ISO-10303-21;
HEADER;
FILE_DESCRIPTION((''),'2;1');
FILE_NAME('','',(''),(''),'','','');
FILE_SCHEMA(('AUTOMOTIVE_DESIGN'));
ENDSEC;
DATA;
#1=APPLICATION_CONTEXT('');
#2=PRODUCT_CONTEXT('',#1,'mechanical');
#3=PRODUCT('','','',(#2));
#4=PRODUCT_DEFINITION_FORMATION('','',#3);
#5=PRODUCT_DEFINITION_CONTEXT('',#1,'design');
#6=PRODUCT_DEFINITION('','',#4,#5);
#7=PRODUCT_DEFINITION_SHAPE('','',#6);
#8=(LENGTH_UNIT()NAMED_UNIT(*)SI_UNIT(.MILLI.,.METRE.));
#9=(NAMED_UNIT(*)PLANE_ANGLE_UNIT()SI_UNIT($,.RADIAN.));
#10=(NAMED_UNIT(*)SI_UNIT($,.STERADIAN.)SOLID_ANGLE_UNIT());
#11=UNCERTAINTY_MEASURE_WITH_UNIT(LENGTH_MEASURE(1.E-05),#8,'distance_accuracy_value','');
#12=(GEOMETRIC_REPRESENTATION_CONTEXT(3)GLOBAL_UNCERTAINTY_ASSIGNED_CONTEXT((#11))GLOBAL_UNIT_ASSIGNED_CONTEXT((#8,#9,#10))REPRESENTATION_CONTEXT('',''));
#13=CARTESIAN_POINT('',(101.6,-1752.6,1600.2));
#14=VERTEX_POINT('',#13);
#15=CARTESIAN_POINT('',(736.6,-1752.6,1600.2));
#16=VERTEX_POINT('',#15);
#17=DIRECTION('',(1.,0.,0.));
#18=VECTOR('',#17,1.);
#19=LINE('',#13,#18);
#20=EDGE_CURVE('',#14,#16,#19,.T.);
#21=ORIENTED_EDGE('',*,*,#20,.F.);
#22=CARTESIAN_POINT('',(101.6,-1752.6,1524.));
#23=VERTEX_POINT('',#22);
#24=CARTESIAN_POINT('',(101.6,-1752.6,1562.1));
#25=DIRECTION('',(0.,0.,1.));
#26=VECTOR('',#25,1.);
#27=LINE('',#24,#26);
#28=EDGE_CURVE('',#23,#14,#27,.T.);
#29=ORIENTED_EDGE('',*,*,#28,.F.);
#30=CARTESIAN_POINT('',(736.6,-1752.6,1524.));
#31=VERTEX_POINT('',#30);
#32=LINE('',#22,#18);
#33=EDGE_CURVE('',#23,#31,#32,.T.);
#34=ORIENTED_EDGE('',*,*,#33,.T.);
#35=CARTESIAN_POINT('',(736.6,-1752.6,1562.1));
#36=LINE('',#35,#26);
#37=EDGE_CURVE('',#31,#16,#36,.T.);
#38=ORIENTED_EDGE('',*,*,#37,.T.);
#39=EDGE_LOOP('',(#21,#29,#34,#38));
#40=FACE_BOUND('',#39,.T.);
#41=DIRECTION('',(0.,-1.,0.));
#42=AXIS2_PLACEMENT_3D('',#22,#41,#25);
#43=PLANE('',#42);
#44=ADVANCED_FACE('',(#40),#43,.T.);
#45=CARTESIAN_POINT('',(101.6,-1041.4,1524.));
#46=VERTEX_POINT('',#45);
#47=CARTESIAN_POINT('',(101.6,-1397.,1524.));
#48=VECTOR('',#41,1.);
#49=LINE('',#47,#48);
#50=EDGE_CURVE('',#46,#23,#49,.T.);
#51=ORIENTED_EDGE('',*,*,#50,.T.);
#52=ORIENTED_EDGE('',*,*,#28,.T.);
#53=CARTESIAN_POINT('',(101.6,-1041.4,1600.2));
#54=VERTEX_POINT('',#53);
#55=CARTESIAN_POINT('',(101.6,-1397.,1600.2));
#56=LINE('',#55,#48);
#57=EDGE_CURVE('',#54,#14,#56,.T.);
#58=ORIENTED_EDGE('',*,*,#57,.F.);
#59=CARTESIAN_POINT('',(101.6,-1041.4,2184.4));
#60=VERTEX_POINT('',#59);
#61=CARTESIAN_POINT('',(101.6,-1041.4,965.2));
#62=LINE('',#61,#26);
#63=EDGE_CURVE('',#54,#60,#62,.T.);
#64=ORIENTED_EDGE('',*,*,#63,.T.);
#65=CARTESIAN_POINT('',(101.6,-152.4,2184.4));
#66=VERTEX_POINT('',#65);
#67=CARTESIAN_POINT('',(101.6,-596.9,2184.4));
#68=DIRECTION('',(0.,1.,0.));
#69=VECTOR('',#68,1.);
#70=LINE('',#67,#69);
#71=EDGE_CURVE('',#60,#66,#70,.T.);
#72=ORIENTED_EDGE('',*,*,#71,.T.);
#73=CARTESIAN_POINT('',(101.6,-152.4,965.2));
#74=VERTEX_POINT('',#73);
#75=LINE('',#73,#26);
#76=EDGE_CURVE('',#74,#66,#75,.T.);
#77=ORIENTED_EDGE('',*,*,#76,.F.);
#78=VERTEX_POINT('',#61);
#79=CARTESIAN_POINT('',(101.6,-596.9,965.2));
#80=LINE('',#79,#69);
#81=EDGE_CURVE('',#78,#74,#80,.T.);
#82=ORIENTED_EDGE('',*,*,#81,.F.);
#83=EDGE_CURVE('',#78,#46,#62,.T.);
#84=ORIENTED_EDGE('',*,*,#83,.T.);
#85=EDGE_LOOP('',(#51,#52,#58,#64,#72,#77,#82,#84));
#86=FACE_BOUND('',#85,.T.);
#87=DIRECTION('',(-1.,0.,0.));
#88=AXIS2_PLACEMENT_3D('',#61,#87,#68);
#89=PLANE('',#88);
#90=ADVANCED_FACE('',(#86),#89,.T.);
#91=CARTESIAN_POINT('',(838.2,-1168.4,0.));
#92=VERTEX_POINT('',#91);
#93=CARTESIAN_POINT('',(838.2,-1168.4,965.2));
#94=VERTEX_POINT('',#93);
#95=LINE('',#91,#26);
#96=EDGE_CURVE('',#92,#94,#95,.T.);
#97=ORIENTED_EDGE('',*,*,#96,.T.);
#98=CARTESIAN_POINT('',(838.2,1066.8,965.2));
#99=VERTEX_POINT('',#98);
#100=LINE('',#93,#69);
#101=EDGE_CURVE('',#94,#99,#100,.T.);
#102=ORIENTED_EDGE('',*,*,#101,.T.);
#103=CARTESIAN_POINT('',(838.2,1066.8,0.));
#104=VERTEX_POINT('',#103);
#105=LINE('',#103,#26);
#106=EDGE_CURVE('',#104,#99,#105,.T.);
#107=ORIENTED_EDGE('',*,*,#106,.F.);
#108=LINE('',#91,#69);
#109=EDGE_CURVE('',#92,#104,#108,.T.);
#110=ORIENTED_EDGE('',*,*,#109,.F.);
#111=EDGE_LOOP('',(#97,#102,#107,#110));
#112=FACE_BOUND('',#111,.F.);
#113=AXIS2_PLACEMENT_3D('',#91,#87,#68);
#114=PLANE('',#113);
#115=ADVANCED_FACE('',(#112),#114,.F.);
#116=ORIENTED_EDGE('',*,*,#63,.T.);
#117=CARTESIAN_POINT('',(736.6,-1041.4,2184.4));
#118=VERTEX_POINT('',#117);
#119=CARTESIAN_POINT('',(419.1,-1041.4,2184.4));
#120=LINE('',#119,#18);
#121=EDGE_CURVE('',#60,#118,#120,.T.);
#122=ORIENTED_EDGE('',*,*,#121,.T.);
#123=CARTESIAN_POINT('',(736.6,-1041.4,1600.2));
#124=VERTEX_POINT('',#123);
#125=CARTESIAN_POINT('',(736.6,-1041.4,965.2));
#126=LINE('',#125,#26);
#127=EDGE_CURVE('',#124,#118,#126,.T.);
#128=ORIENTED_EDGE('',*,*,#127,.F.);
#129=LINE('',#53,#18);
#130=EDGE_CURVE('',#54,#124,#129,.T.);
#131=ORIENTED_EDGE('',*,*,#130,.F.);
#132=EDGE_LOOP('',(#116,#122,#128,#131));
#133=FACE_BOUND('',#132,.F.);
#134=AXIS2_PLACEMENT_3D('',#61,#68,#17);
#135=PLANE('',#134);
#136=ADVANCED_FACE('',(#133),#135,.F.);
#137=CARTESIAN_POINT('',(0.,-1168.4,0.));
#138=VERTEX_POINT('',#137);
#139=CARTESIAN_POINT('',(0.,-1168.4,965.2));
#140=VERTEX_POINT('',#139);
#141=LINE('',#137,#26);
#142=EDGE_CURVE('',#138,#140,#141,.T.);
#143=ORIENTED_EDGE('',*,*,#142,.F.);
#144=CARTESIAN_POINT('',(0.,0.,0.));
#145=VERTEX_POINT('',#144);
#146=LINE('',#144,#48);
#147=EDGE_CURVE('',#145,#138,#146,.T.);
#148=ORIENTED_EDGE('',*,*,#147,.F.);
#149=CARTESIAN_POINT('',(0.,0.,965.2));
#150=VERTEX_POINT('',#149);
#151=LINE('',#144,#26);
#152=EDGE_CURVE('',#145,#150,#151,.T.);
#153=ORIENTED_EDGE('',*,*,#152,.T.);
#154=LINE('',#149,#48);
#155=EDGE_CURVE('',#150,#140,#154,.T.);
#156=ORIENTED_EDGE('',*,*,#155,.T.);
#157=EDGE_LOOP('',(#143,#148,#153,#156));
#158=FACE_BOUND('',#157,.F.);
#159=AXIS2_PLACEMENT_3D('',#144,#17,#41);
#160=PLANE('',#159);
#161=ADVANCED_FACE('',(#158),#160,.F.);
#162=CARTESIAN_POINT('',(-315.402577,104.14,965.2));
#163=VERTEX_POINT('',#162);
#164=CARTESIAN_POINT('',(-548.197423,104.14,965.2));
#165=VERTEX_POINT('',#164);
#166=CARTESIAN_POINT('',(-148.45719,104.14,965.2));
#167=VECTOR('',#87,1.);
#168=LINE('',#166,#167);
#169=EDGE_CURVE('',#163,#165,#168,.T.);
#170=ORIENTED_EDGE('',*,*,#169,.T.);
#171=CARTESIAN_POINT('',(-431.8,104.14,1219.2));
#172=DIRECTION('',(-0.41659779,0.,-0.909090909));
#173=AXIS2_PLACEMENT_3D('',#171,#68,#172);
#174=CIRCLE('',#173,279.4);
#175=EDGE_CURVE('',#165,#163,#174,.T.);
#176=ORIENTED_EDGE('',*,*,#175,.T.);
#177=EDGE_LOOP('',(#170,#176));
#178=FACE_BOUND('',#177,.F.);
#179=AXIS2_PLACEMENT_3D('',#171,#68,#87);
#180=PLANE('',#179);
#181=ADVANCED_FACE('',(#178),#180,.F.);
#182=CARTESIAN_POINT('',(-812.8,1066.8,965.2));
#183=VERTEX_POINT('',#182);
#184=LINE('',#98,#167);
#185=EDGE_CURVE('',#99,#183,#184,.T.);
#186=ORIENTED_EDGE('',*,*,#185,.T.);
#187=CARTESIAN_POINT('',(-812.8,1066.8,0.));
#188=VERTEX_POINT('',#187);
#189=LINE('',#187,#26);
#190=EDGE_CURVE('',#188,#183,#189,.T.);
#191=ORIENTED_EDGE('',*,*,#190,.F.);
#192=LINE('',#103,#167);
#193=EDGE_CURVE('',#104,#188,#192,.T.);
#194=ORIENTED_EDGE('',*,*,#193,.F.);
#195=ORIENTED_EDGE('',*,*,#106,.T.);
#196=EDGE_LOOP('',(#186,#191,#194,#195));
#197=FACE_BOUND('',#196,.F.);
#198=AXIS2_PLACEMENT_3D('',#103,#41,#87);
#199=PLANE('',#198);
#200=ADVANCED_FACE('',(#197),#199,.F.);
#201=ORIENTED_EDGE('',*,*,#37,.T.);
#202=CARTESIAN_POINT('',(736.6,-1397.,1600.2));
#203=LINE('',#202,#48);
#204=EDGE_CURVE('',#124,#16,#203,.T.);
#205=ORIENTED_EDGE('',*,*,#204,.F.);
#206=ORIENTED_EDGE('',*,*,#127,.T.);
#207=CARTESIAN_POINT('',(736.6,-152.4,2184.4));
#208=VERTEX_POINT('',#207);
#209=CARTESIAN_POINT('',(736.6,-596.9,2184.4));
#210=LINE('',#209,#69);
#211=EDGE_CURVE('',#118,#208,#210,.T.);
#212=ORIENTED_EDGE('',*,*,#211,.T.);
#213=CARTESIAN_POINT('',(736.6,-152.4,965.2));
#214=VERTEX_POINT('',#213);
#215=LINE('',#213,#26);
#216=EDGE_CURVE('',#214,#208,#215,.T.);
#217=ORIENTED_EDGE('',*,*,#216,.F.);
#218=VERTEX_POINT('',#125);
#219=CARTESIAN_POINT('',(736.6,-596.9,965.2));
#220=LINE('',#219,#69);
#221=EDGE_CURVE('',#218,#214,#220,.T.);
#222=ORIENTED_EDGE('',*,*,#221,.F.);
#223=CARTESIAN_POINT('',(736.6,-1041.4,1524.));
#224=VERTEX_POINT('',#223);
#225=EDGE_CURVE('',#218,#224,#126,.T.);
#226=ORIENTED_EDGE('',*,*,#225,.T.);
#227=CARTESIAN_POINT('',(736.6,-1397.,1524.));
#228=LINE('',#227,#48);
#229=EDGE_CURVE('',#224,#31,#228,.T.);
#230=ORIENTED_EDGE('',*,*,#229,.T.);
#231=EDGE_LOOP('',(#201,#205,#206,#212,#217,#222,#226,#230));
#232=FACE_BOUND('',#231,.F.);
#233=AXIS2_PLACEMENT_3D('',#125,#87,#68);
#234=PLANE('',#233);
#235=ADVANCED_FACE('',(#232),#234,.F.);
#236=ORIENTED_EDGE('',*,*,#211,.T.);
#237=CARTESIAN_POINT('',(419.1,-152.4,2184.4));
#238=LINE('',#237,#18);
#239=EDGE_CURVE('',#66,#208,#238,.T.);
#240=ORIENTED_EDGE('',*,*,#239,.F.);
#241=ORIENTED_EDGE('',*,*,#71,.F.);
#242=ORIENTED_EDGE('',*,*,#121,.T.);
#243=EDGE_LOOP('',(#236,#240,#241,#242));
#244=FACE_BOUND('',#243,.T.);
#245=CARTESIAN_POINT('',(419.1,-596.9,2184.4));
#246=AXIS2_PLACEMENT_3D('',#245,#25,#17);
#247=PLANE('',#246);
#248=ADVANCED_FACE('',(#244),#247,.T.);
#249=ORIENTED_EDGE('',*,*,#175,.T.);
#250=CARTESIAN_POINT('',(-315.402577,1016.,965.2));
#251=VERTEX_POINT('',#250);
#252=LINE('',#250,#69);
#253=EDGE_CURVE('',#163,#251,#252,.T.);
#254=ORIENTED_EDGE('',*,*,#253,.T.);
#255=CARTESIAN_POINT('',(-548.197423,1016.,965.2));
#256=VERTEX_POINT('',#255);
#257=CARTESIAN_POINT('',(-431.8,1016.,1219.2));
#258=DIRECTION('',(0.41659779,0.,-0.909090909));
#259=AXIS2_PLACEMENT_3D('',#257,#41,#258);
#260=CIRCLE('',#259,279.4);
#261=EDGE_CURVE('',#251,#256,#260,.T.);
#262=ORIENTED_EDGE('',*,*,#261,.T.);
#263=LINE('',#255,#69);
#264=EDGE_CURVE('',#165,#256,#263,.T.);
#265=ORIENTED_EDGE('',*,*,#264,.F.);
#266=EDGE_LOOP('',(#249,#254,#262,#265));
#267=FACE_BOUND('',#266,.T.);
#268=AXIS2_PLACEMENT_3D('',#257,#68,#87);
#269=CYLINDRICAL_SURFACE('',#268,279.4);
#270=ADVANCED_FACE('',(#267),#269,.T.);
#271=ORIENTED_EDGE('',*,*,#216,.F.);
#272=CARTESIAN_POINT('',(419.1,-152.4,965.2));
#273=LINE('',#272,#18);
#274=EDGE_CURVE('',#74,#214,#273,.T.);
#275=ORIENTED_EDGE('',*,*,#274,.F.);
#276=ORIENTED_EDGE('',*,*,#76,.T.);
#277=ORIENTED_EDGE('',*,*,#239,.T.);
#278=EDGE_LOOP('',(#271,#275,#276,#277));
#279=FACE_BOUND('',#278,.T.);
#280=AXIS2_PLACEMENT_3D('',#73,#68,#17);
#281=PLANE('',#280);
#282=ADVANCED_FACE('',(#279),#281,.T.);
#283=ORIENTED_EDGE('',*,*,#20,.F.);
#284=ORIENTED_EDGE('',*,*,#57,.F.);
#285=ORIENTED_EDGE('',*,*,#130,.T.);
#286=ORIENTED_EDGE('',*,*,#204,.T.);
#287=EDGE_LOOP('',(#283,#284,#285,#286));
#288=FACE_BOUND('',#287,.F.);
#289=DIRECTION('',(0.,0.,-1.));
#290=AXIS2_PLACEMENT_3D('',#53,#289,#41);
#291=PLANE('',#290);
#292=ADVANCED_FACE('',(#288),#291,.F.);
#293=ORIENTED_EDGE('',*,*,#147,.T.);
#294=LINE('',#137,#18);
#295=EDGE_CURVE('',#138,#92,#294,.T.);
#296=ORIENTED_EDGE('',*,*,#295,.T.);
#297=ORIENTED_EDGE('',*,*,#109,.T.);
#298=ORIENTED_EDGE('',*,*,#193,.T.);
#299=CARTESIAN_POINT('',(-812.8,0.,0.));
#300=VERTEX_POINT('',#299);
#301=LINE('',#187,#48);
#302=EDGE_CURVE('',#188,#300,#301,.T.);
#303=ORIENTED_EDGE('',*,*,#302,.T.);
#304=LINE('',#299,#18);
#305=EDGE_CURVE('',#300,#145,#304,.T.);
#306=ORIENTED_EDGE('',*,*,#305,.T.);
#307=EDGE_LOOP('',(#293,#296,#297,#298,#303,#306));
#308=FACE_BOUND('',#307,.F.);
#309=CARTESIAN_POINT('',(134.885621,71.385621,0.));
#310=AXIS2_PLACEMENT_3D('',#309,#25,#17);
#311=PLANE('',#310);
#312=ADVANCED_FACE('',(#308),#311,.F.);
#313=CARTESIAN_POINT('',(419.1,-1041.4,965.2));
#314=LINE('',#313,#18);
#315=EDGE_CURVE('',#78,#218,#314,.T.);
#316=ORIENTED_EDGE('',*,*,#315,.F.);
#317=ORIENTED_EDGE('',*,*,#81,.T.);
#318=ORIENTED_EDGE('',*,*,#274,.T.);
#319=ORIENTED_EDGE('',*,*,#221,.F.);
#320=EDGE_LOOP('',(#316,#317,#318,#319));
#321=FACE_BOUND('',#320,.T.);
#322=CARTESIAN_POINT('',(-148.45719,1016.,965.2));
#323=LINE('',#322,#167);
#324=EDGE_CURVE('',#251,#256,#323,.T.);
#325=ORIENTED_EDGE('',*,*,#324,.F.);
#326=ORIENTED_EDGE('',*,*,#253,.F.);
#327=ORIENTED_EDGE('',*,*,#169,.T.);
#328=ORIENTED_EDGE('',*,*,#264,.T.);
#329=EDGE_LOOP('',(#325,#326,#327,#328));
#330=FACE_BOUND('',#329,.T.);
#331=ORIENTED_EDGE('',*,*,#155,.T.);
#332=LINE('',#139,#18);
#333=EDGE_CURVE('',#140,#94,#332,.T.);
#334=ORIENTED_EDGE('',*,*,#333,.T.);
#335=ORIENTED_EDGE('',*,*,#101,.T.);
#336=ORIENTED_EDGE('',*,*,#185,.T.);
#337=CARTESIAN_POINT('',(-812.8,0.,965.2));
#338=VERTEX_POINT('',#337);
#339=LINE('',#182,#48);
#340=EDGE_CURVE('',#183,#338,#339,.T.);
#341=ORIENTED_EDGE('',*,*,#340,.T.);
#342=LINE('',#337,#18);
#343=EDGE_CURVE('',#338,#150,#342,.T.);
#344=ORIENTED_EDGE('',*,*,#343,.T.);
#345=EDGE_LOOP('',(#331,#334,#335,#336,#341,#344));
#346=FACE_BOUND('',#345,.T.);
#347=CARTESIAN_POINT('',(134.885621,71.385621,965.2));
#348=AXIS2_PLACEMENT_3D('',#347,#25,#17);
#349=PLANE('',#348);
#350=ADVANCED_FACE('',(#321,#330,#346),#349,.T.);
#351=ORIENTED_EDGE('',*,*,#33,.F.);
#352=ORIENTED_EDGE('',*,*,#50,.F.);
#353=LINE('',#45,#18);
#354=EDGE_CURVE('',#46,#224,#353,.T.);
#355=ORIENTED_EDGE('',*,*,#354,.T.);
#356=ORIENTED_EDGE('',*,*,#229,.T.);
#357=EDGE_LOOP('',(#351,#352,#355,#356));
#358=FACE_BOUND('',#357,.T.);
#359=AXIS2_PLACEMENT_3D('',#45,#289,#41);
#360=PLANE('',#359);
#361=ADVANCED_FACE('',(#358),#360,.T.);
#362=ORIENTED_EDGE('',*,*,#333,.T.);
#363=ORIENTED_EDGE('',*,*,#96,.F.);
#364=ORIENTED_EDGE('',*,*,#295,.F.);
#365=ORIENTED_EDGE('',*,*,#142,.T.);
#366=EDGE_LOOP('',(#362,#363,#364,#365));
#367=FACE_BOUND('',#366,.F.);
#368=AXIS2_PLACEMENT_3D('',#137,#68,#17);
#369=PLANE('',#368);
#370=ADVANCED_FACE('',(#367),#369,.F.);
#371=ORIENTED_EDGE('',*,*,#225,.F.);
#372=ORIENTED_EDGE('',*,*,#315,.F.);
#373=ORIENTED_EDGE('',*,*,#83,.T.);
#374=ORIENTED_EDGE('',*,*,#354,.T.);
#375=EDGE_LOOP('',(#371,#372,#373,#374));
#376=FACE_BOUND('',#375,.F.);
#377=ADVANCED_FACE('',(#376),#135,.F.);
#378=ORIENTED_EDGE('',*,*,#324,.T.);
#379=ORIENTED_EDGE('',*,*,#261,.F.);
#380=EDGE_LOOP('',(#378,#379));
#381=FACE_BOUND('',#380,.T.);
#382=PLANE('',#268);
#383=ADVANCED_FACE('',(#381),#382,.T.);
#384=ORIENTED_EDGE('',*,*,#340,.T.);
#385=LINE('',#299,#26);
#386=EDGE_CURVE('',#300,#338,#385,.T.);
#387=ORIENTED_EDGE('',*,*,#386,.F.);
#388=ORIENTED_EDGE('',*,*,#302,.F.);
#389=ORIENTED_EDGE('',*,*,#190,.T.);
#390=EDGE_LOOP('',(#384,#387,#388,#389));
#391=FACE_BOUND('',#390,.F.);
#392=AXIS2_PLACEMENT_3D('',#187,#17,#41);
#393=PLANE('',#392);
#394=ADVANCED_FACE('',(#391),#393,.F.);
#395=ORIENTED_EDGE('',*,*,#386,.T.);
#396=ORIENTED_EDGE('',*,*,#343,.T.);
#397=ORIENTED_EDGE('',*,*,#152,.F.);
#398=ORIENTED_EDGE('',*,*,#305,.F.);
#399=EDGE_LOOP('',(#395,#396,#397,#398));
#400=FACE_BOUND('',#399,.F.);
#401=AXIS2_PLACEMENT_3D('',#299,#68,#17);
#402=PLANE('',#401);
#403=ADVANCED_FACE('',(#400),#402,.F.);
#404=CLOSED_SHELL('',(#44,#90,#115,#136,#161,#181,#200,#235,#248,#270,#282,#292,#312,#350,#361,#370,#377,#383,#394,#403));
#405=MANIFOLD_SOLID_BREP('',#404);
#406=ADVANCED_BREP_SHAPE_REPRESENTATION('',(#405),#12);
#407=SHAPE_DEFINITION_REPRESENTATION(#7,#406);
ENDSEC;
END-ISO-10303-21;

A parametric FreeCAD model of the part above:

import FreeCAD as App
import Part
import Sketcher
from FreeCAD import Vector
Q = App.Units.Quantity


def add_polygon(sketch, points):
    """Adds a closed chain of lines whose ends are joined by coincident constraints."""
    first, n = sketch.GeometryCount, len(points)
    for a, b in zip(points, points[1:] + points[:1]):
        sketch.addGeometry(Part.LineSegment(App.Vector(*a, 0), App.Vector(*b, 0)), False)
    for i in range(n):
        sketch.addConstraint(Sketcher.Constraint("Coincident", first + i, 2, first + (i + 1) % n, 1))

doc = App.newDocument("Part")
body = doc.addObject("PartDesign::Body", "Body")

sketch1 = body.newObject("Sketcher::SketchObject", "Sketch")
sketch1.AttachmentSupport = (doc.getObject("XY_Plane"), [""])
sketch1.MapMode = "FlatFace"
add_polygon(sketch1, [(-813, 0), (0, 0), (0, -1168), (838, -1168), (838, 1067), (-813, 1067)])
sketch1.addConstraint([
    Sketcher.Constraint("Horizontal", 0),
    Sketcher.Constraint("Vertical", 1),
    Sketcher.Constraint("Horizontal", 2),
    Sketcher.Constraint("Vertical", 3),
    Sketcher.Constraint("Horizontal", 4),
    Sketcher.Constraint("Vertical", 5),
    Sketcher.Constraint("Coincident", 0, 2, -1, 1),
    Sketcher.Constraint("DistanceX", 0, 1, 0, 2, Q("32 in")),
    Sketcher.Constraint("DistanceX", 2, 1, 2, 2, Q("33 in")),
    Sketcher.Constraint("DistanceY", 1, 2, 1, 1, Q("46 in")),
    Sketcher.Constraint("DistanceY", 3, 1, 3, 2, Q("88 in")),
])
pad1 = body.newObject("PartDesign::Pad", "Pad")
pad1.Profile = sketch1
pad1.Length = Q("38 in")

sketch2 = body.newObject("Sketcher::SketchObject", "Sketch001")
sketch2.AttachmentSupport = (doc.getObject("XZ_Plane"), [""])
sketch2.MapMode = "FlatFace"
sketch2.AttachmentOffset = App.Placement(Vector(0, 0, -40 * 25.4), App.Rotation())
sketch2.addGeometry(Part.Circle(Vector(-432, 1219, 0), Vector(0, 0, 1), 279), False)
sketch2.addConstraint([
    Sketcher.Constraint("Diameter", 0, Q("22 in")),
    Sketcher.Constraint("DistanceX", 0, 3, -1, 1, Q("17 in")),
    Sketcher.Constraint("DistanceY", -1, 1, 0, 3, Q("48 in")),
])
pad2 = body.newObject("PartDesign::Pad", "Pad001")
pad2.Profile = sketch2
pad2.Length = Q("35.9 in")

sketch3 = body.newObject("Sketcher::SketchObject", "Sketch002")
sketch3.AttachmentSupport = (doc.getObject("XY_Plane"), [""])
sketch3.MapMode = "FlatFace"
sketch3.AttachmentOffset = App.Placement(Vector(0, 0, 38 * 25.4), App.Rotation())
add_polygon(sketch3, [(102, -152), (102, -1041), (737, -1041), (737, -152)])
sketch3.addConstraint([
    Sketcher.Constraint("Vertical", 0),
    Sketcher.Constraint("Horizontal", 1),
    Sketcher.Constraint("Vertical", 2),
    Sketcher.Constraint("Horizontal", 3),
    Sketcher.Constraint("DistanceX", 1, 1, 1, 2, Q("25 in")),
    Sketcher.Constraint("DistanceY", 0, 2, 0, 1, Q("35 in")),
    Sketcher.Constraint("DistanceX", -1, 1, 0, 2, Q("4 in")),
    Sketcher.Constraint("DistanceY", 0, 2, -1, 1, Q("41 in")),
])
pad3 = body.newObject("PartDesign::Pad", "Pad002")
pad3.Profile = sketch3
pad3.Length = Q("48 in")

sketch4 = body.newObject("Sketcher::SketchObject", "Sketch003")
sketch4.AttachmentSupport = (doc.getObject("YZ_Plane"), [""])
sketch4.MapMode = "FlatFace"
sketch4.AttachmentOffset = App.Placement(Vector(0, 0, 4 * 25.4), App.Rotation())
add_polygon(sketch4, [(-1041, 1600), (-1041, 1524), (-1753, 1524), (-1753, 1600)])
sketch4.addConstraint([
    Sketcher.Constraint("Vertical", 0),
    Sketcher.Constraint("Horizontal", 1),
    Sketcher.Constraint("Vertical", 2),
    Sketcher.Constraint("Horizontal", 3),
    Sketcher.Constraint("DistanceX", 1, 2, 1, 1, Q("28 in")),
    Sketcher.Constraint("DistanceY", 0, 2, 0, 1, Q("3 in")),
    Sketcher.Constraint("DistanceX", 0, 2, -1, 1, Q("41 in")),
    Sketcher.Constraint("DistanceY", -1, 1, 0, 2, Q("60 in")),
])
pad4 = body.newObject("PartDesign::Pad", "Pad003")
pad4.Profile = sketch4
pad4.Length = Q("25 in")

doc.recompute()
